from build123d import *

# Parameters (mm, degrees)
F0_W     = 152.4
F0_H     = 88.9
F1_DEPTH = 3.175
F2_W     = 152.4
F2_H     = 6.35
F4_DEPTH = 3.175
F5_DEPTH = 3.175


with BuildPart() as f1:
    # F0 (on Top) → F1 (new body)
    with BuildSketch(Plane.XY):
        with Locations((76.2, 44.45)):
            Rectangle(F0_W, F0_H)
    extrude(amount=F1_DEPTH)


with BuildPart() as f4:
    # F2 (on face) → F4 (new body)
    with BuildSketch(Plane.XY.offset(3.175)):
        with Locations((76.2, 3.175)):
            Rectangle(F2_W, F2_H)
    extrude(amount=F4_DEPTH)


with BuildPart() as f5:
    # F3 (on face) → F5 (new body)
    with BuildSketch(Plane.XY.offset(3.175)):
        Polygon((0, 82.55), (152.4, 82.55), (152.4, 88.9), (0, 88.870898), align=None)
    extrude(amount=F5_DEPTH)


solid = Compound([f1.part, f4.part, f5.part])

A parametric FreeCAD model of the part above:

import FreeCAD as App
import Part
import Sketcher
Q = App.Units.Quantity


def add_polygon(sketch, points):
    """Adds a closed chain of lines whose ends are joined by coincident constraints."""
    first, n = sketch.GeometryCount, len(points)
    for a, b in zip(points, points[1:] + points[:1]):
        sketch.addGeometry(Part.LineSegment(App.Vector(*a, 0), App.Vector(*b, 0)), False)
    for i in range(n):
        sketch.addConstraint(Sketcher.Constraint("Coincident", first + i, 2, first + (i + 1) % n, 1))

doc = App.newDocument("Part")
body = doc.addObject("PartDesign::Body", "Body")

# Sketch on XY plane
sketch1 = body.newObject("Sketcher::SketchObject", "Sketch")
sketch1.AttachmentSupport = (doc.getObject("XY_Plane"), [""])
sketch1.MapMode = "FlatFace"
add_polygon(sketch1, [(0, 88.9), (0, 0), (152.4, 0), (152.4, 88.9)])  # lines 0-3
sketch1.addConstraint([
    Sketcher.Constraint("Vertical", 0),
    Sketcher.Constraint("Horizontal", 1),
    Sketcher.Constraint("Vertical", 2),
    Sketcher.Constraint("Horizontal", 3),
    Sketcher.Constraint("Coincident", 0, 2, -1, 1),
    Sketcher.Constraint("DistanceX", 1, 1, 1, 2, Q("6 in")),
    Sketcher.Constraint("DistanceY", 0, 2, 0, 1, Q("3.5 in")),
])
pad1 = body.newObject("PartDesign::Pad", "Pad")
pad1.Profile = sketch1
pad1.Length = Q("0.125 in")
body2 = doc.addObject("PartDesign::Body", "Body001")

# Sketch on XY plane
sketch2 = body2.newObject("Sketcher::SketchObject", "Sketch001")
sketch2.AttachmentSupport = (doc.getObject("XY_Plane001"), [""])
sketch2.MapMode = "FlatFace"
sketch2.AttachmentOffset = App.Placement(App.Vector(0, 0, 0.125 * 25.4), App.Rotation())
add_polygon(sketch2, [(0, 6.35), (0, 0), (152.4, 0), (152.4, 6.35)])  # lines 0-3
sketch2.addConstraint([
    Sketcher.Constraint("Vertical", 0),
    Sketcher.Constraint("Horizontal", 1),
    Sketcher.Constraint("Vertical", 2),
    Sketcher.Constraint("Horizontal", 3),
    Sketcher.Constraint("Coincident", 0, 2, -1, 1),
    Sketcher.Constraint("DistanceX", 1, 1, 1, 2, Q("6 in")),
    Sketcher.Constraint("DistanceY", 0, 2, 0, 1, Q("0.25 in")),
])
pad2 = body2.newObject("PartDesign::Pad", "Pad001")
pad2.Profile = sketch2
pad2.Length = Q("0.125 in")
body3 = doc.addObject("PartDesign::Body", "Body002")

# Sketch on XY plane
sketch3 = body3.newObject("Sketcher::SketchObject", "Sketch002")
sketch3.AttachmentSupport = (doc.getObject("XY_Plane002"), [""])
sketch3.MapMode = "FlatFace"
sketch3.AttachmentOffset = App.Placement(App.Vector(0, 0, 0.125 * 25.4), App.Rotation())
add_polygon(sketch3, [(0, 82.55), (152.4, 82.55), (152.4, 88.9), (0, 88.870898)])  # lines 0-3
sketch3.addConstraint([
    Sketcher.Constraint("Horizontal", 0),
    Sketcher.Constraint("Vertical", 1),
    Sketcher.Constraint("Vertical", 3),
    Sketcher.Constraint("PointOnObject", 2, 2, -2),
    Sketcher.Constraint("DistanceX", 0, 1, 0, 2, Q("6 in")),
    Sketcher.Constraint("DistanceY", 1, 1, 1, 2, Q("0.25 in")),
    Sketcher.Constraint("DistanceY", -1, 1, 1, 2, Q("3.5 in")),
    Sketcher.Constraint("DistanceY", 3, 2, 3, 1, Q("6.320898 mm")),
])
pad3 = body3.newObject("PartDesign::Pad", "Pad002")
pad3.Profile = sketch3
pad3.Length = Q("0.125 in")

doc.recompute()
